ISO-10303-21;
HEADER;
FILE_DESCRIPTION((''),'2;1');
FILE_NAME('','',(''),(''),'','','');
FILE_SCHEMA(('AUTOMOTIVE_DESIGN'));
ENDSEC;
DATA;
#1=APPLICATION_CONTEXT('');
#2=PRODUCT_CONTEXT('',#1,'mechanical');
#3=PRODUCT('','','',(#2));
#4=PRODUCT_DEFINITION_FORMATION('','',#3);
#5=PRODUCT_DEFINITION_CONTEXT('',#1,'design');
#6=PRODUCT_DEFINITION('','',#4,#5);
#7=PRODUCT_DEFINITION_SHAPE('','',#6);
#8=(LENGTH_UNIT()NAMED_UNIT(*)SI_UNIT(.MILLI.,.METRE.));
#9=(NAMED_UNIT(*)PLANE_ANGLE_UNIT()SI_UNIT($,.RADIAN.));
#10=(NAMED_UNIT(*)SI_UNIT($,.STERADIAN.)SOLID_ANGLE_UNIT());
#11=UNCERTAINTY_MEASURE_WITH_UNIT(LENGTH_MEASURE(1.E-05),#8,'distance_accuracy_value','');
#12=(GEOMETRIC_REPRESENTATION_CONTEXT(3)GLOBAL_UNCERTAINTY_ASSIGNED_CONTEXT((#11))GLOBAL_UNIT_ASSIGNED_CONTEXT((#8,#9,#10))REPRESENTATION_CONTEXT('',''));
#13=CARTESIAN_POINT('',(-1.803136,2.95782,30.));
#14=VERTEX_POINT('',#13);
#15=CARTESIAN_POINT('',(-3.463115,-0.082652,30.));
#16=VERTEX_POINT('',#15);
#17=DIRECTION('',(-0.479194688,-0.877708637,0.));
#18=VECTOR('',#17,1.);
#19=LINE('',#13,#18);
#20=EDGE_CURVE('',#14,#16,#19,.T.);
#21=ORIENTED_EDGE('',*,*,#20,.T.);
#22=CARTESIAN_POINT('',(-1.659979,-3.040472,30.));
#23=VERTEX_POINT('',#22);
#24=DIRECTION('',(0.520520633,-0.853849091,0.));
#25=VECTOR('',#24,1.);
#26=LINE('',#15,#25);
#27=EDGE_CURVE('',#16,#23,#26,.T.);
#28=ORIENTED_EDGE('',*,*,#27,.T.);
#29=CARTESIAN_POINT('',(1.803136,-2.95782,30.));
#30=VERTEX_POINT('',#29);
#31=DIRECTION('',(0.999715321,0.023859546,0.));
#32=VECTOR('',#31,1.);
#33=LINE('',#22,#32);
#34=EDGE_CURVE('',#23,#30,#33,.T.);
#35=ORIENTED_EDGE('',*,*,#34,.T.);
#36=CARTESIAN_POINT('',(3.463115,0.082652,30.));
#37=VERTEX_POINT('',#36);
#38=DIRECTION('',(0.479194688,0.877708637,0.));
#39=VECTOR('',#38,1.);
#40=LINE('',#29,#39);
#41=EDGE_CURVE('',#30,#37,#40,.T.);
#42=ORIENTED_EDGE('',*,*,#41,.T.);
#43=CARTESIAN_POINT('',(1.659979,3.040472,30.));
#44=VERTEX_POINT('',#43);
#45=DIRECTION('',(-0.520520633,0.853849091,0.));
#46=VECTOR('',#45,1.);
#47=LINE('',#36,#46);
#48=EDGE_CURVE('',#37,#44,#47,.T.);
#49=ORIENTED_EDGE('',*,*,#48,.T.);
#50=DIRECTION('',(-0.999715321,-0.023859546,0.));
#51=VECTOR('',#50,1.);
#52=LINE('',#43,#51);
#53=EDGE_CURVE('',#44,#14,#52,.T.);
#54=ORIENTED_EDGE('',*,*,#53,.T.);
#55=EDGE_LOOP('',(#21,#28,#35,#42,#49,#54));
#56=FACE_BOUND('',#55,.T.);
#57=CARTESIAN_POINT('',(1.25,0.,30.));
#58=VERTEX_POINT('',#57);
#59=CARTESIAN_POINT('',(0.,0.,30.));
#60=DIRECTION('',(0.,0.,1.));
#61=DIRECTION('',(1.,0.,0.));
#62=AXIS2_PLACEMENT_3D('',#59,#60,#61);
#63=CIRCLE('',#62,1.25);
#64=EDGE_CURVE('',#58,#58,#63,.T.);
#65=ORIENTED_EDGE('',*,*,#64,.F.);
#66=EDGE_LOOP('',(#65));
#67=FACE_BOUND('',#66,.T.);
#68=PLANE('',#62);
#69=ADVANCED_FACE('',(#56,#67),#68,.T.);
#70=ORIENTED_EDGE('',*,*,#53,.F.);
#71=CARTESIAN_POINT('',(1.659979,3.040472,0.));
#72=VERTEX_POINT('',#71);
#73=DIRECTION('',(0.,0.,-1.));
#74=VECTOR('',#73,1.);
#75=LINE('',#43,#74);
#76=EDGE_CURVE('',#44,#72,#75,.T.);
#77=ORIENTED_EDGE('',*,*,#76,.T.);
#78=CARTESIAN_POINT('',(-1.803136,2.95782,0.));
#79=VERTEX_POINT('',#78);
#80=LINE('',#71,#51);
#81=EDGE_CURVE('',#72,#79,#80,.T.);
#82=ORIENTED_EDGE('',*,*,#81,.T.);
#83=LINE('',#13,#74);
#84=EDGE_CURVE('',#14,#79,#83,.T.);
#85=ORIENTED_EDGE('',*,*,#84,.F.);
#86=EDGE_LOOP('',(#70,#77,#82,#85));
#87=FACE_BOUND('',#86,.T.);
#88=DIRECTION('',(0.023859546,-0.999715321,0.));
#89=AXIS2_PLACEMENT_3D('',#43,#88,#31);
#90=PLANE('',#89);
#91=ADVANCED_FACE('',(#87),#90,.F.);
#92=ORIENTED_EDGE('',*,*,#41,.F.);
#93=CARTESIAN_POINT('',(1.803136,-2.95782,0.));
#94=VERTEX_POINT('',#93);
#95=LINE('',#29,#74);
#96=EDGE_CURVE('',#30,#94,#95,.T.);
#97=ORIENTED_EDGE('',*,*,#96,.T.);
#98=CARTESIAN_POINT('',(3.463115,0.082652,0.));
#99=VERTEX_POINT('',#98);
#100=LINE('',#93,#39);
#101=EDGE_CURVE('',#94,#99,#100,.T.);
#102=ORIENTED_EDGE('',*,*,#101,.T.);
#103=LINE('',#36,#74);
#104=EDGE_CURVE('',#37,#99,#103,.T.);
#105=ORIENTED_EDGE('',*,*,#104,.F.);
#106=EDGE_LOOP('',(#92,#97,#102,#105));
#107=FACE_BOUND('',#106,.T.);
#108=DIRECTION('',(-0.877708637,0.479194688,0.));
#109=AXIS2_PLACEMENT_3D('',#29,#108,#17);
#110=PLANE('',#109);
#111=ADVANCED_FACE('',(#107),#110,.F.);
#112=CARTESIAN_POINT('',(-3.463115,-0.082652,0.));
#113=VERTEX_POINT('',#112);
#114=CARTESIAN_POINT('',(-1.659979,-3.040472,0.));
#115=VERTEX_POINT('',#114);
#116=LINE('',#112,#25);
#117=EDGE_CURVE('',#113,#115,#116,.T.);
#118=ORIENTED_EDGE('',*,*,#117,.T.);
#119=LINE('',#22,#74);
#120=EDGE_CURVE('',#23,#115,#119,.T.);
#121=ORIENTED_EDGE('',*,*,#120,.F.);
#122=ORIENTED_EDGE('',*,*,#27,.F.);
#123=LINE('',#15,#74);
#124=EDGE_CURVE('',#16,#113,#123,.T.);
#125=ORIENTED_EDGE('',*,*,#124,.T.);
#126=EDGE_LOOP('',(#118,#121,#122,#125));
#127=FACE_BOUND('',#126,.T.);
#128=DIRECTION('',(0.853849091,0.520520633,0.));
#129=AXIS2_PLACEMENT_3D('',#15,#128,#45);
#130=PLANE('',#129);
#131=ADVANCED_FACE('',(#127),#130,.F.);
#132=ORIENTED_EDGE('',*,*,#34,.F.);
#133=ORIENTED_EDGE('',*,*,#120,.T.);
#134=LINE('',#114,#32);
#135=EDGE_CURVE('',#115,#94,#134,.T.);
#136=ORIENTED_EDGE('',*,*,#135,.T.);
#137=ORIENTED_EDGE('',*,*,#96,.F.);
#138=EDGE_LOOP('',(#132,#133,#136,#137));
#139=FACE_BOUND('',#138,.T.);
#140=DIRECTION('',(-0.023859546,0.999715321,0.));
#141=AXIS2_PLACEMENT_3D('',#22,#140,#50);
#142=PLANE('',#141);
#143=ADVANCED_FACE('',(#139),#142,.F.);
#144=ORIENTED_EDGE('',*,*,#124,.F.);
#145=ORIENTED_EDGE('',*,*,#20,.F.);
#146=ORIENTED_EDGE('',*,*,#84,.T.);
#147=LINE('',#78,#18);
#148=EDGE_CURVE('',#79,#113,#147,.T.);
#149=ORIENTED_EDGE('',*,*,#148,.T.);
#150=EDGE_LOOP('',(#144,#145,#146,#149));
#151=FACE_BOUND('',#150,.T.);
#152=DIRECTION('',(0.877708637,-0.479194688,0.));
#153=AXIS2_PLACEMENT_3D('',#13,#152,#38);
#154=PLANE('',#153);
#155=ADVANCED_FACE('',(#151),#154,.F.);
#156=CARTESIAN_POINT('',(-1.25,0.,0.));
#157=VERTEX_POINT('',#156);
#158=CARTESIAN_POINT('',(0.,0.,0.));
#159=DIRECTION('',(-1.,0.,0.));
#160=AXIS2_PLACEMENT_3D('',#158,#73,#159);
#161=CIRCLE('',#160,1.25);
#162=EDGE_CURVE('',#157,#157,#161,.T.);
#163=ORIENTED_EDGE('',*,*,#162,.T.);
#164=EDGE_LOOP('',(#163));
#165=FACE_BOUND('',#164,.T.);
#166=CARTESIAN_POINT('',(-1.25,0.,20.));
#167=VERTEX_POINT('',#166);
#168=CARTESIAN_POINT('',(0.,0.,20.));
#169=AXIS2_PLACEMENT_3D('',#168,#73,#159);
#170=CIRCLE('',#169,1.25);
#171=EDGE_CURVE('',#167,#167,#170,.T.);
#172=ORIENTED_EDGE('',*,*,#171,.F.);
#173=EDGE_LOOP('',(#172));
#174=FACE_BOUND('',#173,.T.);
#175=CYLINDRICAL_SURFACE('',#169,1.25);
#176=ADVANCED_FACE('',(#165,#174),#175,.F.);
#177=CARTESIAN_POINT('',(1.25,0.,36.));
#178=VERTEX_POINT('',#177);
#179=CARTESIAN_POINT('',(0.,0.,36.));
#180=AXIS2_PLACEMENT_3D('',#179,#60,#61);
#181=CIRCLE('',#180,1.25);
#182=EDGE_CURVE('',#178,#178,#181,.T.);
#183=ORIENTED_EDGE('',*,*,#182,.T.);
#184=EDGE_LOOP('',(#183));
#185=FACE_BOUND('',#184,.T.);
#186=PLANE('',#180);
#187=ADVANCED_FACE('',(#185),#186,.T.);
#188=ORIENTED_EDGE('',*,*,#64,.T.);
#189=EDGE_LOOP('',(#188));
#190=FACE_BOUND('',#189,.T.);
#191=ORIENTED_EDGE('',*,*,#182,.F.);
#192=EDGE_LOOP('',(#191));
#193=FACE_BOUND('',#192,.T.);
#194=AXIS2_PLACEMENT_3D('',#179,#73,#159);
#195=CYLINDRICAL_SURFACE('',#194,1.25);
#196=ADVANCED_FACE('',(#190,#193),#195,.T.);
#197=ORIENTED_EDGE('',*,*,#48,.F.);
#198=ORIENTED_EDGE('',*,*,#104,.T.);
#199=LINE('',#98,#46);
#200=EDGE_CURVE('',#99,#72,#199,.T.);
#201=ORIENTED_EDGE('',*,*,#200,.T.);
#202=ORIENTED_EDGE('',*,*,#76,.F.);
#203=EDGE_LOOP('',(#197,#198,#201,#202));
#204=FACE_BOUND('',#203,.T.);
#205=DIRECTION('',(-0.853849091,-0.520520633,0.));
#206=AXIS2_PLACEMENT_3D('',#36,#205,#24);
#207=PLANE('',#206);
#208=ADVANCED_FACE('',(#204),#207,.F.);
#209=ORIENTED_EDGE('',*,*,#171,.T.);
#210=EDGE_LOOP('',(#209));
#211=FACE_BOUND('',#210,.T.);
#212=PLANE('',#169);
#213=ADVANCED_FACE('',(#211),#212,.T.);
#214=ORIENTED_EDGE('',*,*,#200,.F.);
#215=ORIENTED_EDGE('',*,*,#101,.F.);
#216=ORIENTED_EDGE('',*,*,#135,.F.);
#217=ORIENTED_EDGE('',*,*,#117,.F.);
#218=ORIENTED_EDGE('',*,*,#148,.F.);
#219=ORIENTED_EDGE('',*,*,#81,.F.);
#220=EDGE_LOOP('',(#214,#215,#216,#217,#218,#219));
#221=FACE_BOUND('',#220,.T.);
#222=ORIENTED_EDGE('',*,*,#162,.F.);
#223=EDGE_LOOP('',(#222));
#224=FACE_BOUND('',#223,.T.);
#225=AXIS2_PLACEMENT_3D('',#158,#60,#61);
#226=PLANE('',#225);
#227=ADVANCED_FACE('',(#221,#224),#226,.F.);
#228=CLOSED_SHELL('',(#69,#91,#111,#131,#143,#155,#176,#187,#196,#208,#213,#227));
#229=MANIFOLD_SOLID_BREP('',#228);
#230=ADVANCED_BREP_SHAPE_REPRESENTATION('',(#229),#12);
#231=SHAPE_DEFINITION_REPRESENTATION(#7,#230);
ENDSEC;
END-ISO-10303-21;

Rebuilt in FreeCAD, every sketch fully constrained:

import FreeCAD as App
import Part
import Sketcher

doc = App.newDocument("Part")
params = doc.addObject("Spreadsheet::Sheet", "Params")
for row, (alias, value) in enumerate([
    ("pad1_length", "30 mm"),
    ("sketch2_diameter", "2.5 mm"),
    ("pad2_length", "6 mm"),
    ("sketch3_diameter", "2.5 mm"),
    ("pocket1_length", "20 mm"),
], start=1):
    params.set(f"A{row}", alias)
    params.set(f"B{row}", "=" + value)
    params.setAlias(f"B{row}", alias)

body = doc.addObject("PartDesign::Body", "Body")

# Sketch on XY plane
sketch1 = body.newObject("Sketcher::SketchObject", "Sketch")
sketch1.AttachmentSupport = (doc.getObject("XY_Plane"), [""])
sketch1.MapMode = "FlatFace"
sketch1.addGeometry([
    Part.LineSegment(App.Vector(1.659979, 3.040472, 0), App.Vector(-1.803136, 2.95782, 0)),  # 0
    Part.LineSegment(App.Vector(-1.803136, 2.95782, 0), App.Vector(-3.463115, -0.082652, 0)),  # 1
    Part.LineSegment(App.Vector(-3.463115, -0.082652, 0), App.Vector(-1.659979, -3.040472, 0)),  # 2
    Part.LineSegment(App.Vector(-1.659979, -3.040472, 0), App.Vector(1.803136, -2.95782, 0)),  # 3
    Part.LineSegment(App.Vector(1.803136, -2.95782, 0), App.Vector(3.463115, 0.082652, 0)),  # 4
    Part.LineSegment(App.Vector(3.463115, 0.082652, 0), App.Vector(1.659979, 3.040472, 0)),  # 5
], False)
sketch1.addConstraint([
    Sketcher.Constraint("Coincident", 0, 2, 1, 1),
    Sketcher.Constraint("Coincident", 1, 2, 2, 1),
    Sketcher.Constraint("Coincident", 2, 2, 3, 1),
    Sketcher.Constraint("Coincident", 3, 2, 4, 1),
    Sketcher.Constraint("Coincident", 4, 2, 5, 1),
    Sketcher.Constraint("Coincident", 5, 2, 0, 1),
    Sketcher.Constraint("Symmetric", 0, 2, 3, 2, -1, 1),
    Sketcher.Constraint("Symmetric", 1, 2, 4, 2, -1, 1),
    Sketcher.Constraint("Symmetric", 2, 2, 5, 2, -1, 1),
    Sketcher.Constraint("Equal", 0, 1),
    Sketcher.Constraint("Equal", 1, 2),
    Sketcher.Constraint("Distance", 0, 3.464102),
    Sketcher.Constraint("DistanceY", -1, 1, 0, 2, 2.95782),
    Sketcher.Constraint("DistanceY", 1, 2, -1, 1, 0.082652),
    Sketcher.Constraint("DistanceX", 2, 2, -1, 1, 1.659979),
])
pad1 = body.newObject("PartDesign::Pad", "Pad")
pad1.Profile = sketch1
pad1.setExpression("Length", "Params.pad1_length")

# Sketch on XY plane
sketch2 = body.newObject("Sketcher::SketchObject", "Sketch001")
sketch2.AttachmentSupport = (doc.getObject("XY_Plane"), [""])
sketch2.MapMode = "FlatFace"
sketch2.AttachmentOffset = App.Placement(App.Vector(0, 0, 30), App.Rotation())
sketch2.addGeometry(Part.Circle(App.Vector(0, 0, 0), App.Vector(0, 0, 1), 1.25), False)
sketch2.addConstraint([
    Sketcher.Constraint("Coincident", 0, 3, -1, 1),
    Sketcher.Constraint("Diameter", 0, 2.5),
])
sketch2.setExpression("Constraints[1]", "Params.sketch2_diameter")
pad2 = body.newObject("PartDesign::Pad", "Pad001")
pad2.Profile = sketch2
pad2.setExpression("Length", "Params.pad2_length")

# Sketch on XY plane
sketch3 = body.newObject("Sketcher::SketchObject", "Sketch002")
sketch3.AttachmentSupport = (doc.getObject("XY_Plane"), [""])
sketch3.MapMode = "FlatFace"
sketch3.addGeometry(Part.Circle(App.Vector(0, 0, 0), App.Vector(0, 0, 1), 1.25), False)
sketch3.addConstraint([
    Sketcher.Constraint("Coincident", 0, 3, -1, 1),
    Sketcher.Constraint("Diameter", 0, 2.5),
])
sketch3.setExpression("Constraints[1]", "Params.sketch3_diameter")
pocket1 = body.newObject("PartDesign::Pocket", "Pocket")
pocket1.Profile = sketch3
pocket1.setExpression("Length", "Params.pocket1_length")
pocket1.Reversed = True

doc.recompute()
